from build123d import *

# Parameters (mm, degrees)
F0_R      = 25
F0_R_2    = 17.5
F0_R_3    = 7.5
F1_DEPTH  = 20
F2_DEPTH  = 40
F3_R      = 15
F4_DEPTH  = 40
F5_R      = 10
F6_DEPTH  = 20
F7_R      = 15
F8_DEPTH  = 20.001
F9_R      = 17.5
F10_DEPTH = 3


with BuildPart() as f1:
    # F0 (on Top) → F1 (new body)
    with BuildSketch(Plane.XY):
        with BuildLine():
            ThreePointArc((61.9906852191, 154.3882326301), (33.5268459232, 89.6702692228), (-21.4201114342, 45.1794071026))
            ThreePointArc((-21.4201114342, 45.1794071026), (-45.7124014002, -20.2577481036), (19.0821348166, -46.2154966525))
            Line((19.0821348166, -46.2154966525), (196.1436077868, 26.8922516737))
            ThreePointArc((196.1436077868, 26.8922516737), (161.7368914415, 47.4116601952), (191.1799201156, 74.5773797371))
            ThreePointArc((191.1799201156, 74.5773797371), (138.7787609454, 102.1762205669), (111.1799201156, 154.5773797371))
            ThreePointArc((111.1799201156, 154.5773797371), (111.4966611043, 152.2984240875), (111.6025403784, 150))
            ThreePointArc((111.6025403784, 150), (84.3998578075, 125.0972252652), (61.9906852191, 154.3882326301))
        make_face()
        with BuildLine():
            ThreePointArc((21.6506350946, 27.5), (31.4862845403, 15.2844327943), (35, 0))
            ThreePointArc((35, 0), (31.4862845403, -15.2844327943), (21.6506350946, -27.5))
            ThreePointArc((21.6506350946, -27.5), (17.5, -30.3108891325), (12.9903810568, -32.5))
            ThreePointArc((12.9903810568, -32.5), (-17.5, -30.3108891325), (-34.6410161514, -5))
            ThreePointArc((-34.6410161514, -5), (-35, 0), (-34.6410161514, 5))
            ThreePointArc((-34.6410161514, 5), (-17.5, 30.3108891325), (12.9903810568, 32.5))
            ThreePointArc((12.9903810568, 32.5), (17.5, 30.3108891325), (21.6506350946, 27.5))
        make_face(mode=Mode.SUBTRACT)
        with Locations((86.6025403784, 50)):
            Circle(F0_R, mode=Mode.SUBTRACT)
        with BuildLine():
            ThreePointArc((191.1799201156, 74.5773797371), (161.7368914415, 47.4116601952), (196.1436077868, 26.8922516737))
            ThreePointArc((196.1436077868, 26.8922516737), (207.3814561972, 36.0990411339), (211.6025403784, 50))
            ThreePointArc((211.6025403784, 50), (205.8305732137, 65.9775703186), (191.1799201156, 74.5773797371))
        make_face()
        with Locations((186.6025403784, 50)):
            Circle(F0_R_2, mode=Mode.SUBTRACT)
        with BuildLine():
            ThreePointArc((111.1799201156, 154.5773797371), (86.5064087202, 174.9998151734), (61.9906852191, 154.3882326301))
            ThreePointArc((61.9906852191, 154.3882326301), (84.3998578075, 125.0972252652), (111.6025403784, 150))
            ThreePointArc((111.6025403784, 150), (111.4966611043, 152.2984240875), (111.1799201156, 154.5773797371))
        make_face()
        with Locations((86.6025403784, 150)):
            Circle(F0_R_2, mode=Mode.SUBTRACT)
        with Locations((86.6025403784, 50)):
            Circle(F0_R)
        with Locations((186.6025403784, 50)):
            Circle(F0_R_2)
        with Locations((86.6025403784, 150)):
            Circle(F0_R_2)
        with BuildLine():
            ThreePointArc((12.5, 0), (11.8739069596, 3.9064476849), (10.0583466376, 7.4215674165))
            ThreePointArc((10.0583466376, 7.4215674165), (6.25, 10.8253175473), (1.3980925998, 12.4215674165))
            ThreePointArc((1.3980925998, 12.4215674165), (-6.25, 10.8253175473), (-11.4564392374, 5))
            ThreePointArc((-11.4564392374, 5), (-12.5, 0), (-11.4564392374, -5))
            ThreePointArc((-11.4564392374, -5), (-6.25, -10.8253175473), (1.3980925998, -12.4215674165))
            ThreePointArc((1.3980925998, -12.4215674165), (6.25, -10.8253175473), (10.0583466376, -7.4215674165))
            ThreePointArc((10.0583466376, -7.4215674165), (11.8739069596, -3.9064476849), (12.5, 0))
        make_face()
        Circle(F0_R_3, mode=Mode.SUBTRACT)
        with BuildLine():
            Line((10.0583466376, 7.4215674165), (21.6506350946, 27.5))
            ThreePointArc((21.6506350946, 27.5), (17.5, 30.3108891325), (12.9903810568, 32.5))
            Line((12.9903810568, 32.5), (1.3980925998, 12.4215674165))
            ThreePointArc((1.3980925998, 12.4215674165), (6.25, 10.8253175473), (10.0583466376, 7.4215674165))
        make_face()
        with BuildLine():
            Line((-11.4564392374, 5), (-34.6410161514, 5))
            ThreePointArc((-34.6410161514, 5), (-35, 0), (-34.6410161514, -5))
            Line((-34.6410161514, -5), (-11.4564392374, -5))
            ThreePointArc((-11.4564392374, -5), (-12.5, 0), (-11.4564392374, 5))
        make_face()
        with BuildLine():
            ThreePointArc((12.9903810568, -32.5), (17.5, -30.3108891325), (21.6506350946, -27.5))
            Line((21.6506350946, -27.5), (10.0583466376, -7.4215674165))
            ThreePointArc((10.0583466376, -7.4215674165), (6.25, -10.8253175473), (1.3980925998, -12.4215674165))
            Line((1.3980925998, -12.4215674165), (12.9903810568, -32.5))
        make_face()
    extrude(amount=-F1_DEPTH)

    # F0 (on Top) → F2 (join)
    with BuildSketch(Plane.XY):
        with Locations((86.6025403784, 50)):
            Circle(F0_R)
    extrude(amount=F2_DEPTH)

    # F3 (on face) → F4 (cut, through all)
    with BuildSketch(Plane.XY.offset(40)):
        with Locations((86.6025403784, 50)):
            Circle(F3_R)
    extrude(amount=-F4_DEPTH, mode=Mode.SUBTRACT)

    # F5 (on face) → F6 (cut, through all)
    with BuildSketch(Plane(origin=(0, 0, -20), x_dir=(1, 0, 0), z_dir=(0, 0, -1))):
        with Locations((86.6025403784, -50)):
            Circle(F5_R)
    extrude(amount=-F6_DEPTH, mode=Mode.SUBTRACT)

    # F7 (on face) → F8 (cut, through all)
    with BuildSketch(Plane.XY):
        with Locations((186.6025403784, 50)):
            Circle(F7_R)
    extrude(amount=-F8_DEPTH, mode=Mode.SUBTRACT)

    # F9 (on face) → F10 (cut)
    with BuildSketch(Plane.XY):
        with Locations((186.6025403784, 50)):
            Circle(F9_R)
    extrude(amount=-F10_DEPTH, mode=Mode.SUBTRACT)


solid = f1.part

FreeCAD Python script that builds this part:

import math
import FreeCAD as App
import Part
import Sketcher

V = App.Vector
Q = App.Units.Quantity

doc = App.newDocument("Part")
body = doc.addObject("PartDesign::Body", "Body")

# Sketch on XY plane
sketch1 = body.newObject("Sketcher::SketchObject", "Sketch")
sketch1.AttachmentSupport = (doc.getObject("XY_Plane"), [""])
sketch1.MapMode = "FlatFace"
sketch1.addGeometry([
    Part.ArcOfCircle(Part.Circle(V(-86, 181, 0), V(0, 0, 1), 150), math.radians(-65), math.radians(-10)),  # 0
    Part.ArcOfCircle(Part.Circle(V(0, 0, 0), V(0, 0, 1), 50), math.radians(115), math.radians(292)),  # 1
    Part.LineSegment(V(19, -46, 0), V(196, 27, 0)),  # 2
    Part.ArcOfCircle(Part.Circle(V(187, 50, 0), V(0, 0, 1), 25), math.radians(-68), math.radians(0)),  # 3
    Part.ArcOfCircle(Part.Circle(V(187, 50, 0), V(0, 0, 1), 25), math.radians(0), math.radians(79)),  # 4
    Part.ArcOfCircle(Part.Circle(V(209, 173, 0), V(0, 0, 1), 100), math.radians(-169), math.radians(-101)),  # 5
    Part.ArcOfCircle(Part.Circle(V(87, 150, 0), V(0, 0, 1), 25), math.radians(11), math.radians(170)),  # 6
    Part.ArcOfCircle(Part.Circle(V(0, 0, 0), V(0, 0, 1), 35), math.radians(0), math.radians(52)),  # 7
    Part.ArcOfCircle(Part.Circle(V(0, 0, 0), V(0, 0, 1), 35), math.radians(-52), math.radians(0)),  # 8
    Part.LineSegment(V(22, -28, 0), V(10, -7, 0)),  # 9
    Part.ArcOfCircle(Part.Circle(V(0, 0, 0), V(0, 0, 1), 12), math.radians(-36), math.radians(0)),  # 10
    Part.ArcOfCircle(Part.Circle(V(0, 0, 0), V(0, 0, 1), 12), math.radians(0), math.radians(36)),  # 11
    Part.LineSegment(V(10, 7, 0), V(22, 28, 0)),  # 12
    Part.ArcOfCircle(Part.Circle(V(0, 0, 0), V(0, 0, 1), 35), math.radians(-172), math.radians(-68)),  # 13
    Part.LineSegment(V(-35, -5, 0), V(-11, -5, 0)),  # 14
    Part.ArcOfCircle(Part.Circle(V(0, 0, 0), V(0, 0, 1), 12), math.radians(-156), math.radians(-84)),  # 15
    Part.LineSegment(V(1, -12, 0), V(13, -32, 0)),  # 16
    Part.ArcOfCircle(Part.Circle(V(0, 0, 0), V(0, 0, 1), 35), math.radians(68), math.radians(172)),  # 17
    Part.LineSegment(V(13, 32, 0), V(1, 12, 0)),  # 18
    Part.ArcOfCircle(Part.Circle(V(0, 0, 0), V(0, 0, 1), 12), math.radians(84), math.radians(156)),  # 19
    Part.LineSegment(V(-11, 5, 0), V(-35, 5, 0)),  # 20
    Part.Circle(V(0, 0, 0), V(0, 0, 1), 8),  # 21
], False)
sketch1.addConstraint([
    Sketcher.Constraint("Tangent", 0, 1, 1, 1),
    Sketcher.Constraint("Tangent", 1, 2, 2, 1),
    Sketcher.Constraint("Tangent", 2, 2, 3, 1),
    Sketcher.Constraint("Tangent", 3, 2, 4, 1),
    Sketcher.Constraint("Tangent", 4, 2, 5, 2),
    Sketcher.Constraint("Tangent", 5, 1, 6, 1),
    Sketcher.Constraint("Tangent", 6, 2, 0, 2),
    Sketcher.Constraint("Tangent", 7, 1, 8, 2),
    Sketcher.Constraint("Coincident", 8, 1, 9, 1),
    Sketcher.Constraint("Coincident", 9, 2, 10, 1),
    Sketcher.Constraint("Tangent", 10, 2, 11, 1),
    Sketcher.Constraint("Coincident", 11, 2, 12, 1),
    Sketcher.Constraint("Coincident", 12, 2, 7, 2),
    Sketcher.Constraint("Coincident", 13, 1, 14, 1),
    Sketcher.Constraint("Coincident", 14, 2, 15, 1),
    Sketcher.Constraint("Coincident", 15, 2, 16, 1),
    Sketcher.Constraint("Coincident", 16, 2, 13, 2),
    Sketcher.Constraint("Coincident", 17, 1, 18, 1),
    Sketcher.Constraint("Coincident", 18, 2, 19, 1),
    Sketcher.Constraint("Coincident", 19, 2, 20, 1),
    Sketcher.Constraint("Coincident", 20, 2, 17, 2),
    Sketcher.Constraint("Horizontal", 14),
    Sketcher.Constraint("Horizontal", 20),
    Sketcher.Constraint("Coincident", 1, 3, -1, 1),
    Sketcher.Constraint("Coincident", 7, 3, -1, 1),
    Sketcher.Constraint("Coincident", 10, 3, -1, 1),
    Sketcher.Constraint("Coincident", 13, 3, -1, 1),
    Sketcher.Constraint("Coincident", 15, 3, -1, 1),
    Sketcher.Constraint("Coincident", 17, 3, -1, 1),
    Sketcher.Constraint("Coincident", 19, 3, -1, 1),
    Sketcher.Constraint("Coincident", 21, 3, -1, 1),
    Sketcher.Constraint("Equal", 3, 4),
    Sketcher.Constraint("Equal", 4, 6),
    Sketcher.Constraint("Equal", 7, 8),
    Sketcher.Constraint("Equal", 10, 11),
    Sketcher.Constraint("Equal", 8, 13),
    Sketcher.Constraint("Equal", 11, 15),
    Sketcher.Constraint("Equal", 13, 17),
    Sketcher.Constraint("Equal", 15, 19),
    Sketcher.Constraint("PointOnObject", 7, 1, -1),
    Sketcher.Constraint("PointOnObject", 10, 2, -1),
    Sketcher.Constraint("Parallel", 9, 16),
    Sketcher.Constraint("Parallel", 12, 18),
    Sketcher.Constraint("Horizontal", 4, 3, 3, 2),
    Sketcher.Constraint("Vertical", 9, 2, 11, 2),
    Sketcher.Constraint("Vertical", 8, 1, 12, 2),
    Sketcher.Constraint("Vertical", 16, 2, 17, 1),
    Sketcher.Constraint("Vertical", 14, 2, 19, 2),
    Sketcher.Constraint("Equal", 12, 16),
    Sketcher.Constraint("Diameter", 21, 15.0),
    Sketcher.Constraint("Radius", 0, 150.0),
    Sketcher.Constraint("Radius", 1, 50.0),
    Sketcher.Constraint("Radius", 3, 25.0),
    Sketcher.Constraint("Radius", 5, 100.0),
    Sketcher.Constraint("Radius", 7, 35.0),
    Sketcher.Constraint("Radius", 10, 12.5),
    Sketcher.Constraint("Angle", 9, Q("120 deg")),
    Sketcher.Constraint("DistanceY", -1, 1, 3, 3, 50.0),
    Sketcher.Constraint("DistanceY", -1, 1, 6, 3, 150.0),
    Sketcher.Constraint("DistanceY", 13, 1, -1, 1, 5.0),
    Sketcher.Constraint("DistanceX", 6, 3, 3, 3, 100.0),
    Sketcher.Constraint("DistanceY", 15, 2, 9, 2, 5.0),
    Sketcher.Constraint("DistanceY", -1, 1, 0, 3, 180.717628),
])
pad1 = body.newObject("PartDesign::Pad", "Pad")
pad1.Profile = sketch1
pad1.Length = 20
pad1.Reversed = True

# Sketch on XY plane
sketch2 = body.newObject("Sketcher::SketchObject", "Sketch001")
sketch2.AttachmentSupport = (doc.getObject("XY_Plane"), [""])
sketch2.MapMode = "FlatFace"
sketch2.addGeometry(Part.Circle(V(87, 50, 0), V(0, 0, 1), 25), False)
sketch2.addConstraint([
    Sketcher.Constraint("Diameter", 0, 50.0),
    Sketcher.Constraint("DistanceY", -1, 1, 0, 3, 50.0),
    Sketcher.Constraint("DistanceX", -1, 1, 0, 3, 86.60254),
])
pad2 = body.newObject("PartDesign::Pad", "Pad001")
pad2.Profile = sketch2
pad2.Length = 40

# Sketch on XY plane
sketch3 = body.newObject("Sketcher::SketchObject", "Sketch002")
sketch3.AttachmentSupport = (doc.getObject("XY_Plane"), [""])
sketch3.MapMode = "FlatFace"
sketch3.AttachmentOffset = App.Placement(V(0, 0, 40), App.Rotation())
sketch3.addGeometry(Part.Circle(V(87, 50, 0), V(0, 0, 1), 15), False)
sketch3.addConstraint([
    Sketcher.Constraint("Diameter", 0, 30.0),
    Sketcher.Constraint("DistanceY", -1, 1, 0, 3, 50.0),
    Sketcher.Constraint("DistanceX", -1, 1, 0, 3, 86.60254),
])
pocket1 = body.newObject("PartDesign::Pocket", "Pocket")
pocket1.Profile = sketch3
pocket1.Length = 40

# Sketch on XY plane
sketch4 = body.newObject("Sketcher::SketchObject", "Sketch003")
sketch4.AttachmentSupport = (doc.getObject("XY_Plane"), [""])
sketch4.MapMode = "FlatFace"
sketch4.AttachmentOffset = App.Placement(V(0, 0, -20), App.Rotation())
sketch4.addGeometry(Part.Circle(V(87, 50, 0), V(0, 0, 1), 10), False)
sketch4.addConstraint([
    Sketcher.Constraint("Diameter", 0, 20.0),
    Sketcher.Constraint("DistanceY", -1, 1, 0, 3, 50.0),
    Sketcher.Constraint("DistanceX", -1, 1, 0, 3, 86.60254),
])
pocket2 = body.newObject("PartDesign::Pocket", "Pocket001")
pocket2.Profile = sketch4
pocket2.Type = "ThroughAll"
pocket2.Reversed = True

# Sketch on XY plane
sketch5 = body.newObject("Sketcher::SketchObject", "Sketch004")
sketch5.AttachmentSupport = (doc.getObject("XY_Plane"), [""])
sketch5.MapMode = "FlatFace"
sketch5.addGeometry(Part.Circle(V(187, 50, 0), V(0, 0, 1), 15), False)
sketch5.addConstraint([
    Sketcher.Constraint("Diameter", 0, 30.0),
    Sketcher.Constraint("DistanceY", -1, 1, 0, 3, 50.0),
    Sketcher.Constraint("DistanceX", -1, 1, 0, 3, 186.60254),
])
pocket3 = body.newObject("PartDesign::Pocket", "Pocket002")
pocket3.Profile = sketch5
pocket3.Type = "ThroughAll"

# Sketch on XY plane
sketch6 = body.newObject("Sketcher::SketchObject", "Sketch005")
sketch6.AttachmentSupport = (doc.getObject("XY_Plane"), [""])
sketch6.MapMode = "FlatFace"
sketch6.addGeometry(Part.Circle(V(187, 50, 0), V(0, 0, 1), 18), False)
sketch6.addConstraint([
    Sketcher.Constraint("Diameter", 0, 35.0),
    Sketcher.Constraint("DistanceY", -1, 1, 0, 3, 50.0),
    Sketcher.Constraint("DistanceX", -1, 1, 0, 3, 186.60254),
])
pocket4 = body.newObject("PartDesign::Pocket", "Pocket003")
pocket4.Profile = sketch6
pocket4.Length = 3

doc.recompute()
